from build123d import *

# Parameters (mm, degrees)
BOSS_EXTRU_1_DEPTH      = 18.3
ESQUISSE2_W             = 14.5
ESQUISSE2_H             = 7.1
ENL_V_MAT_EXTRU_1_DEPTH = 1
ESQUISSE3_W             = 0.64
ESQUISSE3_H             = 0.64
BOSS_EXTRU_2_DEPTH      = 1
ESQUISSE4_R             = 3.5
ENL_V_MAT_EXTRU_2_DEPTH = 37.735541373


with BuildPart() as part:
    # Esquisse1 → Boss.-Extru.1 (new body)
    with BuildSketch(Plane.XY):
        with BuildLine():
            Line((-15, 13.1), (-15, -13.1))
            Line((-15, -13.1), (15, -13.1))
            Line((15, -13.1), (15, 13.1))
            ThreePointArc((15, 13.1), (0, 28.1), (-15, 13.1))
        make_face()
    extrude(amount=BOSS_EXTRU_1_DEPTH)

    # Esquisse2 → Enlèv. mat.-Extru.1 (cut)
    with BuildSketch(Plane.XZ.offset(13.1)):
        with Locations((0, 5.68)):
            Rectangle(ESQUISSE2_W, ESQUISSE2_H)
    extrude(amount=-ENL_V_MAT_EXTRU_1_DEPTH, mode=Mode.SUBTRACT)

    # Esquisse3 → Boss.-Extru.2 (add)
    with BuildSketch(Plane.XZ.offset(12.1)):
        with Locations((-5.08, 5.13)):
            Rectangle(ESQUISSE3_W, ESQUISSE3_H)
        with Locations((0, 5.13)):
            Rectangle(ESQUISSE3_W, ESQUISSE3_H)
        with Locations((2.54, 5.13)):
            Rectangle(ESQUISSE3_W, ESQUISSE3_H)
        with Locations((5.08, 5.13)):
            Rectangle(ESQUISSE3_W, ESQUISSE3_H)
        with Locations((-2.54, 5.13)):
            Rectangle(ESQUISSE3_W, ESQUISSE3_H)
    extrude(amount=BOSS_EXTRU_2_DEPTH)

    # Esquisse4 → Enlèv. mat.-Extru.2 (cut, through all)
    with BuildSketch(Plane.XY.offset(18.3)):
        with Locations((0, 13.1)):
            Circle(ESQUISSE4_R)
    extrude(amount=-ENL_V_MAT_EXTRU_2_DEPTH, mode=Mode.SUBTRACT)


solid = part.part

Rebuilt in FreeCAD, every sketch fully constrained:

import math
import FreeCAD as App
import Part
import Sketcher
Q = App.Units.Quantity

doc = App.newDocument("Part")
params = doc.addObject("Spreadsheet::Sheet", "Params")
for row, (alias, value) in enumerate([
    ("sketch1_radius", "15 mm"),
    ("sketch1_height", "26.2 mm"),
    ("pad1_length", "18.3 mm"),
    ("sketch2_width", "14.5 mm"),
    ("sketch2_height", "7.1 mm"),
    ("pocket1_length", "1 mm"),
    ("sketch3_width", "0.64 mm"),
    ("pad2_length", "1 mm"),
    ("sketch4_diameter", "7 mm"),
], start=1):
    params.set(f"A{row}", alias)
    params.set(f"B{row}", "=" + value)
    params.setAlias(f"B{row}", alias)

body = doc.addObject("PartDesign::Body", "Body")

# Sketch on XY plane
sketch1 = body.newObject("Sketcher::SketchObject", "Sketch")
sketch1.AttachmentSupport = (doc.getObject("XY_Plane"), [""])
sketch1.MapMode = "FlatFace"
sketch1.addGeometry([
    Part.LineSegment(App.Vector(-15, 13.1, 0), App.Vector(-15, -13.1, 0)),
    Part.LineSegment(App.Vector(-15, -13.1, 0), App.Vector(15, -13.1, 0)),
    Part.LineSegment(App.Vector(15, -13.1, 0), App.Vector(15, 13.1, 0)),
    Part.ArcOfCircle(Part.Circle(App.Vector(0, 13.1, 0), App.Vector(0, 0, 1), 15), math.radians(0), math.radians(180)),
], False)
sketch1.addConstraint([
    Sketcher.Constraint("Coincident", 0, 2, 1, 1),
    Sketcher.Constraint("Coincident", 1, 2, 2, 1),
    Sketcher.Constraint("Tangent", 2, 2, 3, 1),
    Sketcher.Constraint("Tangent", 3, 2, 0, 1),
    Sketcher.Constraint("Vertical", 0),
    Sketcher.Constraint("Horizontal", 1),
    Sketcher.Constraint("Vertical", 2),
    Sketcher.Constraint("Symmetric", 0, 2, 2, 2, -1, 1),
    Sketcher.Constraint("Radius", 3, Q("15 mm")),
    Sketcher.Constraint("DistanceY", 0, 2, 0, 1, Q("26.2 mm")),
])
sketch1.setExpression("Constraints[8]", "Params.sketch1_radius")
sketch1.setExpression("Constraints[9]", "Params.sketch1_height")
pad1 = body.newObject("PartDesign::Pad", "Pad")
pad1.Profile = sketch1
pad1.setExpression("Length", "Params.pad1_length")

# Sketch on XZ plane
sketch2 = body.newObject("Sketcher::SketchObject", "Sketch001")
sketch2.AttachmentSupport = (doc.getObject("XZ_Plane"), [""])
sketch2.MapMode = "FlatFace"
sketch2.AttachmentOffset = App.Placement(App.Vector(0, 0, 13.1), App.Rotation())
sketch2.addGeometry([
    Part.LineSegment(App.Vector(-7.25, 9.23, 0), App.Vector(-7.25, 2.13, 0)),
    Part.LineSegment(App.Vector(-7.25, 2.13, 0), App.Vector(7.25, 2.13, 0)),
    Part.LineSegment(App.Vector(7.25, 2.13, 0), App.Vector(7.25, 9.23, 0)),
    Part.LineSegment(App.Vector(7.25, 9.23, 0), App.Vector(-7.25, 9.23, 0)),
], False)
sketch2.addConstraint([
    Sketcher.Constraint("Coincident", 0, 2, 1, 1),
    Sketcher.Constraint("Coincident", 1, 2, 2, 1),
    Sketcher.Constraint("Coincident", 2, 2, 3, 1),
    Sketcher.Constraint("Coincident", 3, 2, 0, 1),
    Sketcher.Constraint("Vertical", 0),
    Sketcher.Constraint("Horizontal", 1),
    Sketcher.Constraint("Vertical", 2),
    Sketcher.Constraint("Horizontal", 3),
    Sketcher.Constraint("DistanceX", 1, 1, 1, 2, Q("14.5 mm")),
    Sketcher.Constraint("DistanceY", 0, 2, 0, 1, Q("7.1 mm")),
    Sketcher.Constraint("DistanceX", 0, 2, -1, 1, Q("7.25 mm")),
    Sketcher.Constraint("DistanceY", -1, 1, 0, 2, Q("2.13 mm")),
])
sketch2.setExpression("Constraints[8]", "Params.sketch2_width")
sketch2.setExpression("Constraints[9]", "Params.sketch2_height")
pocket1 = body.newObject("PartDesign::Pocket", "Pocket")
pocket1.Profile = sketch2
pocket1.setExpression("Length", "Params.pocket1_length")

# Sketch on XZ plane
sketch3 = body.newObject("Sketcher::SketchObject", "Sketch002")
sketch3.AttachmentSupport = (doc.getObject("XZ_Plane"), [""])
sketch3.MapMode = "FlatFace"
sketch3.AttachmentOffset = App.Placement(App.Vector(0, 0, 12.1), App.Rotation())
sketch3.addGeometry([
    Part.LineSegment(App.Vector(-5.4, 5.45, 0), App.Vector(-5.4, 4.81, 0)),  # 0
    Part.LineSegment(App.Vector(-5.4, 4.81, 0), App.Vector(-4.76, 4.81, 0)),  # 1
    Part.LineSegment(App.Vector(-4.76, 4.81, 0), App.Vector(-4.76, 5.45, 0)),  # 2
    Part.LineSegment(App.Vector(-4.76, 5.45, 0), App.Vector(-5.4, 5.45, 0)),  # 3
    Part.LineSegment(App.Vector(-0.32, 5.45, 0), App.Vector(-0.32, 4.81, 0)),  # 4
    Part.LineSegment(App.Vector(-0.32, 4.81, 0), App.Vector(0.32, 4.81, 0)),  # 5
    Part.LineSegment(App.Vector(0.32, 4.81, 0), App.Vector(0.32, 5.45, 0)),  # 6
    Part.LineSegment(App.Vector(0.32, 5.45, 0), App.Vector(-0.32, 5.45, 0)),  # 7
    Part.LineSegment(App.Vector(2.22, 5.45, 0), App.Vector(2.22, 4.81, 0)),  # 8
    Part.LineSegment(App.Vector(2.22, 4.81, 0), App.Vector(2.86, 4.81, 0)),  # 9
    Part.LineSegment(App.Vector(2.86, 4.81, 0), App.Vector(2.86, 5.45, 0)),  # 10
    Part.LineSegment(App.Vector(2.86, 5.45, 0), App.Vector(2.22, 5.45, 0)),  # 11
    Part.LineSegment(App.Vector(4.76, 5.45, 0), App.Vector(4.76, 4.81, 0)),  # 12
    Part.LineSegment(App.Vector(4.76, 4.81, 0), App.Vector(5.4, 4.81, 0)),  # 13
    Part.LineSegment(App.Vector(5.4, 4.81, 0), App.Vector(5.4, 5.45, 0)),  # 14
    Part.LineSegment(App.Vector(5.4, 5.45, 0), App.Vector(4.76, 5.45, 0)),  # 15
    Part.LineSegment(App.Vector(-2.86, 5.45, 0), App.Vector(-2.86, 4.81, 0)),  # 16
    Part.LineSegment(App.Vector(-2.86, 4.81, 0), App.Vector(-2.22, 4.81, 0)),  # 17
    Part.LineSegment(App.Vector(-2.22, 4.81, 0), App.Vector(-2.22, 5.45, 0)),  # 18
    Part.LineSegment(App.Vector(-2.22, 5.45, 0), App.Vector(-2.86, 5.45, 0)),  # 19
], False)
sketch3.addConstraint([
    Sketcher.Constraint("Coincident", 0, 2, 1, 1),
    Sketcher.Constraint("Coincident", 1, 2, 2, 1),
    Sketcher.Constraint("Coincident", 2, 2, 3, 1),
    Sketcher.Constraint("Coincident", 3, 2, 0, 1),
    Sketcher.Constraint("Coincident", 4, 2, 5, 1),
    Sketcher.Constraint("Coincident", 5, 2, 6, 1),
    Sketcher.Constraint("Coincident", 6, 2, 7, 1),
    Sketcher.Constraint("Coincident", 7, 2, 4, 1),
    Sketcher.Constraint("Coincident", 8, 2, 9, 1),
    Sketcher.Constraint("Coincident", 9, 2, 10, 1),
    Sketcher.Constraint("Coincident", 10, 2, 11, 1),
    Sketcher.Constraint("Coincident", 11, 2, 8, 1),
    Sketcher.Constraint("Coincident", 12, 2, 13, 1),
    Sketcher.Constraint("Coincident", 13, 2, 14, 1),
    Sketcher.Constraint("Coincident", 14, 2, 15, 1),
    Sketcher.Constraint("Coincident", 15, 2, 12, 1),
    Sketcher.Constraint("Coincident", 16, 2, 17, 1),
    Sketcher.Constraint("Coincident", 17, 2, 18, 1),
    Sketcher.Constraint("Coincident", 18, 2, 19, 1),
    Sketcher.Constraint("Coincident", 19, 2, 16, 1),
    Sketcher.Constraint("Vertical", 0),
    Sketcher.Constraint("Horizontal", 1),
    Sketcher.Constraint("Vertical", 2),
    Sketcher.Constraint("Horizontal", 3),
    Sketcher.Constraint("Vertical", 4),
    Sketcher.Constraint("Horizontal", 5),
    Sketcher.Constraint("Vertical", 6),
    Sketcher.Constraint("Horizontal", 7),
    Sketcher.Constraint("Vertical", 8),
    Sketcher.Constraint("Horizontal", 9),
    Sketcher.Constraint("Vertical", 10),
    Sketcher.Constraint("Horizontal", 11),
    Sketcher.Constraint("Vertical", 12),
    Sketcher.Constraint("Horizontal", 13),
    Sketcher.Constraint("Vertical", 14),
    Sketcher.Constraint("Horizontal", 15),
    Sketcher.Constraint("Vertical", 16),
    Sketcher.Constraint("Horizontal", 17),
    Sketcher.Constraint("Vertical", 18),
    Sketcher.Constraint("Horizontal", 19),
    Sketcher.Constraint("Symmetric", 1, 2, 12, 2, -2),
    Sketcher.Constraint("Symmetric", 3, 2, 14, 2, -2),
    Sketcher.Constraint("Symmetric", 9, 2, 16, 2, -2),
    Sketcher.Constraint("Symmetric", 11, 2, 18, 2, -2),
    Sketcher.Constraint("Horizontal", 1, 2, 4, 2),
    Sketcher.Constraint("Horizontal", 3, 2, 6, 2),
    Sketcher.Constraint("Horizontal", 5, 2, 8, 2),
    Sketcher.Constraint("Horizontal", 7, 2, 10, 2),
    Sketcher.Constraint("Equal", 3, 5),
    Sketcher.Constraint("Equal", 7, 9),
    Sketcher.Constraint("Equal", 19, 0),
    Sketcher.Constraint("DistanceX", 1, 1, 1, 2, Q("0.64 mm")),
    Sketcher.Constraint("DistanceX", 0, 2, -1, 1, Q("5.4 mm")),
    Sketcher.Constraint("DistanceX", 5, 2, 8, 2, Q("1.9 mm")),
    Sketcher.Constraint("DistanceX", 9, 2, 12, 2, Q("1.9 mm")),
    Sketcher.Constraint("DistanceY", -1, 1, 0, 2, Q("4.81 mm")),
])
sketch3.setExpression("Constraints[51]", "Params.sketch3_width")
pad2 = body.newObject("PartDesign::Pad", "Pad001")
pad2.Profile = sketch3
pad2.setExpression("Length", "Params.pad2_length")

# Sketch on XY plane
sketch4 = body.newObject("Sketcher::SketchObject", "Sketch003")
sketch4.AttachmentSupport = (doc.getObject("XY_Plane"), [""])
sketch4.MapMode = "FlatFace"
sketch4.AttachmentOffset = App.Placement(App.Vector(0, 0, 18.3), App.Rotation())
sketch4.addGeometry(Part.Circle(App.Vector(0, 13.1, 0), App.Vector(0, 0, 1), 3.5), False)
sketch4.addConstraint([
    Sketcher.Constraint("PointOnObject", 0, 3, -2),
    Sketcher.Constraint("Diameter", 0, Q("7 mm")),
    Sketcher.Constraint("DistanceY", -1, 1, 0, 3, Q("13.1 mm")),
])
sketch4.setExpression("Constraints[1]", "Params.sketch4_diameter")
pocket2 = body.newObject("PartDesign::Pocket", "Pocket001")
pocket2.Profile = sketch4
pocket2.Type = "ThroughAll"

doc.recompute()
